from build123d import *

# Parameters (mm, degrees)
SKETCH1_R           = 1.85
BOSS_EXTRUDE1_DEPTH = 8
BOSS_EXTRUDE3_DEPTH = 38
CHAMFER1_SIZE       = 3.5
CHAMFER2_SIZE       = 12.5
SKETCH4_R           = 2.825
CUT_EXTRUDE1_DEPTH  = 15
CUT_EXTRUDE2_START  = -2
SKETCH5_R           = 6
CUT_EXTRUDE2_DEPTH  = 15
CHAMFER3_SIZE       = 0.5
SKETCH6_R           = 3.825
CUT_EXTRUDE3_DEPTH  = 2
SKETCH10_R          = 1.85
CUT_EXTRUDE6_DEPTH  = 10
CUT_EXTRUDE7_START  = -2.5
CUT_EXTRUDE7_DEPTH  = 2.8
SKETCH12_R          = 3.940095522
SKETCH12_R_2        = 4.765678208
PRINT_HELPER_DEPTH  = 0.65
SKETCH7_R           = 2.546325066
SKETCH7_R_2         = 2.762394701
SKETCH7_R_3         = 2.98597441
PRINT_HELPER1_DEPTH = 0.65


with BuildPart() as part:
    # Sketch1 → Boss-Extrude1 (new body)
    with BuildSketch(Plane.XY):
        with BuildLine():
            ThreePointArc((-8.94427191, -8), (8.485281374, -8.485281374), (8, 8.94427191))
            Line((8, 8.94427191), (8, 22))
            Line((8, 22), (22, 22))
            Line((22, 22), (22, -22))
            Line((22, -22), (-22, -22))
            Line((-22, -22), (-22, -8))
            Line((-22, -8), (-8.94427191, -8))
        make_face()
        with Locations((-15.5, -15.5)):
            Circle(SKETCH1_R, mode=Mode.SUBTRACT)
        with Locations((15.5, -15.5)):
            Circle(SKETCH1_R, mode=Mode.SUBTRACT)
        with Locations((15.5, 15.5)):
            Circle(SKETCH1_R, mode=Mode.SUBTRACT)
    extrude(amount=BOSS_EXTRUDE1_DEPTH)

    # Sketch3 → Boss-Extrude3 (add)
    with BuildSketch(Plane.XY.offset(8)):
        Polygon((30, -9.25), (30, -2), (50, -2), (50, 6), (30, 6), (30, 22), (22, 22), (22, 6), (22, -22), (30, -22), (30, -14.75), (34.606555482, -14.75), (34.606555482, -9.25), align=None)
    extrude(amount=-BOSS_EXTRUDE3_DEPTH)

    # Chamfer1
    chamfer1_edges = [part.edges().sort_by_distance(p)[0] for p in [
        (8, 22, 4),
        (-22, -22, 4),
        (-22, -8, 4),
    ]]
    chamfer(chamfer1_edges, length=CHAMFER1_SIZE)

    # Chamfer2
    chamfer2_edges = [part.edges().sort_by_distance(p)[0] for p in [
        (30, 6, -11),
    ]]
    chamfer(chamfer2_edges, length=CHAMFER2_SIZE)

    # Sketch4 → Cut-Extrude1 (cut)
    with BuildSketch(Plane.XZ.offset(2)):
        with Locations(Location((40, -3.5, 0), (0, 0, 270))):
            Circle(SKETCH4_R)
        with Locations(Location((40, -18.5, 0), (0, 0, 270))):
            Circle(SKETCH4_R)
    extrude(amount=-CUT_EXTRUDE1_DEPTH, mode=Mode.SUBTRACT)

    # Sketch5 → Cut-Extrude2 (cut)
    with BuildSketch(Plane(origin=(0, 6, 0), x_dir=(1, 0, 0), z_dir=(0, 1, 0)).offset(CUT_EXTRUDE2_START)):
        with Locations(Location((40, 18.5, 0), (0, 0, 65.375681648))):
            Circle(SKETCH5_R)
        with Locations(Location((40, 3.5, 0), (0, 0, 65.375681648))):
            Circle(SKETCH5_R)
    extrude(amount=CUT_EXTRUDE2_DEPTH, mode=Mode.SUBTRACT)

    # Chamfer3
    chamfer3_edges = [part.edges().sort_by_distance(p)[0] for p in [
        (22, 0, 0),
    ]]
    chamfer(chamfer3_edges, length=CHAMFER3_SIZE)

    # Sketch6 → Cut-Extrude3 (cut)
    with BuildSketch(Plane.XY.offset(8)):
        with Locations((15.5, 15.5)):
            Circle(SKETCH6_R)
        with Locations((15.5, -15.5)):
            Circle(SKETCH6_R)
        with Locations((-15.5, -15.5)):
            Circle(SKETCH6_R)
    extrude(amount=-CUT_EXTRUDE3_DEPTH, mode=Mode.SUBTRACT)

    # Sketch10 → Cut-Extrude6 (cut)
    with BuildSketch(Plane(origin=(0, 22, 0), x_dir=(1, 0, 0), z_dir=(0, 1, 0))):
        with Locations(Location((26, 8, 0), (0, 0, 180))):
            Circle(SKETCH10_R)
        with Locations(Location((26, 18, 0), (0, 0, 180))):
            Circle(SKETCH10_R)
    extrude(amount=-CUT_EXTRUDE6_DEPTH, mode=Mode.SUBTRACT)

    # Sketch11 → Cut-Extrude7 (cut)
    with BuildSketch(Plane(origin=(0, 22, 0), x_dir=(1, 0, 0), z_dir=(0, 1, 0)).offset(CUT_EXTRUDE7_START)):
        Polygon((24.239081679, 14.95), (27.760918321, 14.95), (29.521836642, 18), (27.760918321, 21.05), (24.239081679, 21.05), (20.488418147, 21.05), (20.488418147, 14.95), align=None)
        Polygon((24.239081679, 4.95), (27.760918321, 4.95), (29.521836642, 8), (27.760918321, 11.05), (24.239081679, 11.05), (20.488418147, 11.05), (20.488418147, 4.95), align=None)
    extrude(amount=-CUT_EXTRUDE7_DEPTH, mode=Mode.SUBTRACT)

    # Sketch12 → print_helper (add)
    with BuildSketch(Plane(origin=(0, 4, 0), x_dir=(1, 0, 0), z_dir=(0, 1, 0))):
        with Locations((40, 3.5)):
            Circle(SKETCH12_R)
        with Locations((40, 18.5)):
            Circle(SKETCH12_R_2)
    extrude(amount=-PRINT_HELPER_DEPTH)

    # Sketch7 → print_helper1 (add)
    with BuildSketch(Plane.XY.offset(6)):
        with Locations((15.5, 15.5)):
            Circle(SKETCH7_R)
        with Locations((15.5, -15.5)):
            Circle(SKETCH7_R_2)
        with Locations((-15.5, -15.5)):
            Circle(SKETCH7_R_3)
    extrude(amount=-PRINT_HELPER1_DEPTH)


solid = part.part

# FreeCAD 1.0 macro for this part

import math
import FreeCAD as App
import Part
import Sketcher
Q = App.Units.Quantity


def edges_at(feature, points):
    """Names of the edges that pass closest to the given points."""
    edges = feature.Shape.Edges
    near = lambda p: min(range(len(edges)), key=lambda i: edges[i].distToShape(Part.Vertex(*p))[0])
    return sorted({f"Edge{near(p) + 1}" for p in points})


def add_polygon(sketch, points):
    """Adds a closed chain of lines whose ends are joined by coincident constraints."""
    first, n = sketch.GeometryCount, len(points)
    for a, b in zip(points, points[1:] + points[:1]):
        sketch.addGeometry(Part.LineSegment(App.Vector(*a, 0), App.Vector(*b, 0)), False)
    for i in range(n):
        sketch.addConstraint(Sketcher.Constraint("Coincident", first + i, 2, first + (i + 1) % n, 1))

doc = App.newDocument("Part")
params = doc.addObject("Spreadsheet::Sheet", "Params")
for row, (alias, value) in enumerate([
    ("sketch1_radius", "12 mm"),
    ("sketch1_diameter", "3.7 mm"),
    ("sketch1_width", "44 mm"),
    ("sketch1_width2", "14 mm"),
    ("pad1_length", "8 mm"),
    ("sketch2_width", "20 mm"),
    ("sketch2_width2", "8 mm"),
    ("sketch2_height", "16 mm"),
    ("sketch2_height2", "44 mm"),
    ("sketch2_height3", "5.5 mm"),
    ("pad2_length", "38 mm"),
    ("chamfer_size", "3.5 mm"),
    ("chamfer2_size", "12.5 mm"),
    ("sketch3_diameter", "5.65 mm"),
    ("pocket1_length", "15 mm"),
    ("sketch4_diameter", "12 mm"),
    ("pocket2_length", "15 mm"),
    ("chamfer3_size", "0.5 mm"),
    ("sketch5_diameter", "7.65 mm"),
    ("pocket3_length", "2 mm"),
    ("sketch6_diameter", "3.7 mm"),
    ("pocket4_length", "10 mm"),
    ("sketch7_height", "6.1 mm"),
    ("pocket5_length", "2.8 mm"),
    ("pad3_length", "0.65 mm"),
    ("pad4_length", "0.65 mm"),
], start=1):
    params.set(f"A{row}", alias)
    params.set(f"B{row}", "=" + value)
    params.setAlias(f"B{row}", alias)

body = doc.addObject("PartDesign::Body", "Body")

sketch1 = body.newObject("Sketcher::SketchObject", "Sketch")
sketch1.AttachmentSupport = (doc.getObject("XY_Plane"), [""])
sketch1.MapMode = "FlatFace"
sketch1.addGeometry([
    Part.ArcOfCircle(Part.Circle(App.Vector(0, 0, 0), App.Vector(0, 0, 1), 12), math.radians(-138), math.radians(48)),
    Part.LineSegment(App.Vector(-8.9, -8, 0), App.Vector(-22, -8, 0)),
    Part.LineSegment(App.Vector(-22, -8, 0), App.Vector(-22, -22, 0)),
    Part.LineSegment(App.Vector(-22, -22, 0), App.Vector(22, -22, 0)),
    Part.LineSegment(App.Vector(22, -22, 0), App.Vector(22, 22, 0)),
    Part.LineSegment(App.Vector(22, 22, 0), App.Vector(8, 22, 0)),
    Part.LineSegment(App.Vector(8, 22, 0), App.Vector(8, 8.9, 0)),
    Part.Circle(App.Vector(15.5, -15.5, 0), App.Vector(0, 0, 1), 1.9),
    Part.Circle(App.Vector(-15.5, -15.5, 0), App.Vector(0, 0, 1), 1.9),
    Part.Circle(App.Vector(15.5, 15.5, 0), App.Vector(0, 0, 1), 1.9),
], False)
sketch1.addConstraint([
    Sketcher.Constraint("Coincident", 0, 1, 1, 1),
    Sketcher.Constraint("Coincident", 1, 2, 2, 1),
    Sketcher.Constraint("Coincident", 2, 2, 3, 1),
    Sketcher.Constraint("Coincident", 3, 2, 4, 1),
    Sketcher.Constraint("Coincident", 4, 2, 5, 1),
    Sketcher.Constraint("Coincident", 5, 2, 6, 1),
    Sketcher.Constraint("Coincident", 6, 2, 0, 2),
    Sketcher.Constraint("Horizontal", 1),
    Sketcher.Constraint("Vertical", 2),
    Sketcher.Constraint("Horizontal", 3),
    Sketcher.Constraint("Vertical", 4),
    Sketcher.Constraint("Horizontal", 5),
    Sketcher.Constraint("Vertical", 6),
    Sketcher.Constraint("Coincident", 0, 3, -1, 1),
    Sketcher.Constraint("Equal", 7, 8),
    Sketcher.Constraint("Equal", 8, 9),
    Sketcher.Constraint("Symmetric", 8, 3, 9, 3, -1, 1),
    Sketcher.Constraint("Symmetric", 2, 2, 4, 2, -1, 1),
    Sketcher.Constraint("Symmetric", 7, 3, 8, 3, -2),
    Sketcher.Constraint("Equal", 5, 2),
    Sketcher.Constraint("Equal", 3, 4),
    Sketcher.Constraint("Radius", 0, 12.0),
    Sketcher.Constraint("Diameter", 7, 3.7),
    Sketcher.Constraint("DistanceX", 3, 1, 3, 2, 44.0),
    Sketcher.Constraint("DistanceX", 5, 2, 5, 1, 14.0),
    Sketcher.Constraint("DistanceX", 8, 3, 7, 3, 31.0),
    Sketcher.Constraint("DistanceY", 7, 3, 9, 3, 31.0),
])
sketch1.setExpression("Constraints[21]", "Params.sketch1_radius")
sketch1.setExpression("Constraints[22]", "Params.sketch1_diameter")
sketch1.setExpression("Constraints[23]", "Params.sketch1_width")
sketch1.setExpression("Constraints[24]", "Params.sketch1_width2")
pad1 = body.newObject("PartDesign::Pad", "Pad")
pad1.Profile = sketch1
pad1.setExpression("Length", "Params.pad1_length")

sketch2 = body.newObject("Sketcher::SketchObject", "Sketch001")
sketch2.AttachmentSupport = (doc.getObject("XY_Plane"), [""])
sketch2.MapMode = "FlatFace"
sketch2.AttachmentOffset = App.Placement(App.Vector(0, 0, 8), App.Rotation())
add_polygon(sketch2, [(30, -9.2), (30, -2), (50, -2), (50, 6), (30, 6), (30, 22), (22, 22), (22, -22), (30, -22), (30, -14.8), (34.6, -14.8), (34.6, -9.2)])
sketch2.addConstraint([
    Sketcher.Constraint("Vertical", 0),
    Sketcher.Constraint("Horizontal", 1),
    Sketcher.Constraint("Vertical", 2),
    Sketcher.Constraint("Horizontal", 3),
    Sketcher.Constraint("Vertical", 4),
    Sketcher.Constraint("Horizontal", 5),
    Sketcher.Constraint("Vertical", 6),
    Sketcher.Constraint("Horizontal", 7),
    Sketcher.Constraint("Vertical", 8),
    Sketcher.Constraint("Horizontal", 9),
    Sketcher.Constraint("Vertical", 10),
    Sketcher.Constraint("Horizontal", 11),
    Sketcher.Constraint("Symmetric", 4, 2, 7, 2, -1),
    Sketcher.Constraint("Vertical", 0, 2, 3, 2),
    Sketcher.Constraint("Equal", 7, 2),
    Sketcher.Constraint("Equal", 0, 8),
    Sketcher.Constraint("DistanceX", 1, 1, 1, 2, 20.0),
    Sketcher.Constraint("DistanceX", 5, 2, 5, 1, 8.0),
    Sketcher.Constraint("DistanceY", 4, 1, 4, 2, 16.0),
    Sketcher.Constraint("DistanceY", 6, 2, 6, 1, 44.0),
    Sketcher.Constraint("DistanceY", 10, 1, 10, 2, 5.5),
    Sketcher.Constraint("DistanceX", -1, 1, 0, 2, 30.0),
    Sketcher.Constraint("DistanceX", 9, 1, 9, 2, 4.606555),
])
sketch2.setExpression("Constraints[28]", "Params.sketch2_width")
sketch2.setExpression("Constraints[29]", "Params.sketch2_width2")
sketch2.setExpression("Constraints[30]", "Params.sketch2_height")
sketch2.setExpression("Constraints[31]", "Params.sketch2_height2")
sketch2.setExpression("Constraints[32]", "Params.sketch2_height3")
pad2 = body.newObject("PartDesign::Pad", "Pad001")
pad2.Profile = sketch2
pad2.setExpression("Length", "Params.pad2_length")
pad2.Reversed = True
doc.recompute()

chamfer = body.newObject("PartDesign::Chamfer", "Chamfer")
chamfer.Base = (pad2, edges_at(pad2, [(8, 22, 4), (-22, -22, 4), (-22, -8, 4)]))
chamfer.setExpression("Size", "Params.chamfer_size")
doc.recompute()

chamfer2 = body.newObject("PartDesign::Chamfer", "Chamfer001")
chamfer2.Base = (chamfer, edges_at(chamfer, [(30, 6, -11)]))
chamfer2.setExpression("Size", "Params.chamfer2_size")

sketch3 = body.newObject("Sketcher::SketchObject", "Sketch002")
sketch3.AttachmentSupport = (doc.getObject("XZ_Plane"), [""])
sketch3.MapMode = "FlatFace"
sketch3.AttachmentOffset = App.Placement(App.Vector(0, 0, 2), App.Rotation())
sketch3.addGeometry([
    Part.Circle(App.Vector(40, -3.5, 0), App.Vector(0, 0, 1), 2.8),
    Part.Circle(App.Vector(40, -18.5, 0), App.Vector(0, 0, 1), 2.8),
], False)
sketch3.addConstraint([
    Sketcher.Constraint("Equal", 0, 1),
    Sketcher.Constraint("Vertical", 0, 3, 1, 3),
    Sketcher.Constraint("Diameter", 0, 5.65),
    Sketcher.Constraint("DistanceX", -1, 1, 0, 3, 40.0),
    Sketcher.Constraint("DistanceY", 1, 3, 0, 3, 15.0),
    Sketcher.Constraint("DistanceY", 0, 3, -1, 1, 3.5),
])
sketch3.setExpression("Constraints[2]", "Params.sketch3_diameter")
pocket1 = body.newObject("PartDesign::Pocket", "Pocket")
pocket1.Profile = sketch3
pocket1.setExpression("Length", "Params.pocket1_length")

sketch4 = body.newObject("Sketcher::SketchObject", "Sketch003")
sketch4.AttachmentSupport = (doc.getObject("XZ_Plane"), [""])
sketch4.MapMode = "FlatFace"
sketch4.AttachmentOffset = App.Placement(App.Vector(0, 0, -4), App.Rotation())
sketch4.addGeometry([
    Part.Circle(App.Vector(40, -18, 0), App.Vector(0, 0, 1), 6),
    Part.Circle(App.Vector(40, -4, 0), App.Vector(0, 0, 1), 6),
], False)
sketch4.addConstraint([
    Sketcher.Constraint("Equal", 0, 1),
    Sketcher.Constraint("Vertical", 0, 3, 1, 3),
    Sketcher.Constraint("Diameter", 0, 12.0),
    Sketcher.Constraint("DistanceX", -1, 1, 0, 3, 40.0),
    Sketcher.Constraint("DistanceY", 0, 3, 1, 3, 15.0),
    Sketcher.Constraint("DistanceY", 0, 3, -1, 1, 18.5),
])
sketch4.setExpression("Constraints[2]", "Params.sketch4_diameter")
pocket2 = body.newObject("PartDesign::Pocket", "Pocket001")
pocket2.Profile = sketch4
pocket2.setExpression("Length", "Params.pocket2_length")
doc.recompute()

chamfer3 = body.newObject("PartDesign::Chamfer", "Chamfer002")
chamfer3.Base = (pocket2, edges_at(pocket2, [(22, 0, 0)]))
chamfer3.setExpression("Size", "Params.chamfer3_size")

sketch5 = body.newObject("Sketcher::SketchObject", "Sketch004")
sketch5.AttachmentSupport = (doc.getObject("XY_Plane"), [""])
sketch5.MapMode = "FlatFace"
sketch5.AttachmentOffset = App.Placement(App.Vector(0, 0, 8), App.Rotation())
sketch5.addGeometry([
    Part.Circle(App.Vector(15.5, 15.5, 0), App.Vector(0, 0, 1), 3.8),
    Part.Circle(App.Vector(15.5, -15.5, 0), App.Vector(0, 0, 1), 3.8),
    Part.Circle(App.Vector(-15.5, -15.5, 0), App.Vector(0, 0, 1), 3.8),
], False)
sketch5.addConstraint([
    Sketcher.Constraint("Equal", 0, 1),
    Sketcher.Constraint("Equal", 1, 2),
    Sketcher.Constraint("Symmetric", 0, 3, 2, 3, -1, 1),
    Sketcher.Constraint("Symmetric", 1, 3, 2, 3, -2),
    Sketcher.Constraint("Diameter", 0, 7.65),
    Sketcher.Constraint("DistanceY", 1, 3, 0, 3, 31.0),
    Sketcher.Constraint("DistanceX", 2, 3, 1, 3, 31.0),
])
sketch5.setExpression("Constraints[4]", "Params.sketch5_diameter")
pocket3 = body.newObject("PartDesign::Pocket", "Pocket002")
pocket3.Profile = sketch5
pocket3.setExpression("Length", "Params.pocket3_length")

sketch6 = body.newObject("Sketcher::SketchObject", "Sketch005")
sketch6.AttachmentSupport = (doc.getObject("XZ_Plane"), [""])
sketch6.MapMode = "FlatFace"
sketch6.AttachmentOffset = App.Placement(App.Vector(0, 0, -22), App.Rotation())
sketch6.addGeometry([
    Part.Circle(App.Vector(26, -8, 0), App.Vector(0, 0, 1), 1.9),
    Part.Circle(App.Vector(26, -18, 0), App.Vector(0, 0, 1), 1.9),
], False)
sketch6.addConstraint([
    Sketcher.Constraint("Equal", 0, 1),
    Sketcher.Constraint("Vertical", 0, 3, 1, 3),
    Sketcher.Constraint("Diameter", 0, 3.7),
    Sketcher.Constraint("DistanceX", -1, 1, 0, 3, 26.0),
    Sketcher.Constraint("DistanceY", 0, 3, -1, 1, 8.0),
    Sketcher.Constraint("DistanceY", 1, 3, -1, 1, 18.0),
])
sketch6.setExpression("Constraints[2]", "Params.sketch6_diameter")
pocket4 = body.newObject("PartDesign::Pocket", "Pocket003")
pocket4.Profile = sketch6
pocket4.setExpression("Length", "Params.pocket4_length")
pocket4.Reversed = True

sketch7 = body.newObject("Sketcher::SketchObject", "Sketch006")
sketch7.AttachmentSupport = (doc.getObject("XZ_Plane"), [""])
sketch7.MapMode = "FlatFace"
sketch7.AttachmentOffset = App.Placement(App.Vector(0, 0, -19.5), App.Rotation())
add_polygon(sketch7, [(27.8, -14.9), (29.5, -18), (27.8, -21.1), (20.5, -21.1), (20.5, -14.9)])
add_polygon(sketch7, [(27.8, -5), (29.5, -8), (27.8, -11.1), (20.5, -11.1), (20.5, -5)])
sketch7.addConstraint([
    Sketcher.Constraint("Horizontal", 2),
    Sketcher.Constraint("Vertical", 3),
    Sketcher.Constraint("Horizontal", 4),
    Sketcher.Constraint("Horizontal", 7),
    Sketcher.Constraint("Vertical", 8),
    Sketcher.Constraint("Horizontal", 9),
    Sketcher.Constraint("Parallel", 0, 5),
    Sketcher.Constraint("Parallel", 1, 6),
    Sketcher.Constraint("Vertical", 1, 2, 4, 2),
    Sketcher.Constraint("Vertical", 0, 2, 5, 2),
    Sketcher.Constraint("Vertical", 4, 2, 6, 2),
    Sketcher.Constraint("Vertical", 3, 2, 7, 2),
    Sketcher.Constraint("Vertical", 6, 2, 9, 2),
    Sketcher.Constraint("Equal", 0, 1),
    Sketcher.Constraint("Angle", 0, Q("-60 deg")),
    Sketcher.Constraint("DistanceY", 3, 1, 3, 2, 6.1),
    Sketcher.Constraint("DistanceY", 0, 2, -1, 1, 18.0),
    Sketcher.Constraint("DistanceY", 5, 2, -1, 1, 8.0),
    Sketcher.Constraint("DistanceX", 2, 2, 2, 1, 7.2725),
    Sketcher.Constraint("DistanceX", -1, 1, 1, 2, 27.760918),
])
sketch7.setExpression("Constraints[25]", "Params.sketch7_height")
pocket5 = body.newObject("PartDesign::Pocket", "Pocket004")
pocket5.Profile = sketch7
pocket5.setExpression("Length", "Params.pocket5_length")
pocket5.Reversed = True

sketch8 = body.newObject("Sketcher::SketchObject", "Sketch007")
sketch8.AttachmentSupport = (doc.getObject("XZ_Plane"), [""])
sketch8.MapMode = "FlatFace"
sketch8.AttachmentOffset = App.Placement(App.Vector(0, 0, -4), App.Rotation())
sketch8.addGeometry([
    Part.Circle(App.Vector(40, -3.5, 0), App.Vector(0, 0, 1), 3.9),
    Part.Circle(App.Vector(40, -18.5, 0), App.Vector(0, 0, 1), 4.8),
], False)
sketch8.addConstraint([
    Sketcher.Constraint("Vertical", 0, 3, 1, 3),
    Sketcher.Constraint("DistanceX", -1, 1, 0, 3, 40.0),
    Sketcher.Constraint("DistanceY", 1, 3, 0, 3, 15.0),
    Sketcher.Constraint("DistanceY", 0, 3, -1, 1, 3.5),
    Sketcher.Constraint("Diameter", 0, 7.880191),
    Sketcher.Constraint("Diameter", 1, 9.531356),
])
pad3 = body.newObject("PartDesign::Pad", "Pad002")
pad3.Profile = sketch8
pad3.setExpression("Length", "Params.pad3_length")

sketch9 = body.newObject("Sketcher::SketchObject", "Sketch008")
sketch9.AttachmentSupport = (doc.getObject("XY_Plane"), [""])
sketch9.MapMode = "FlatFace"
sketch9.AttachmentOffset = App.Placement(App.Vector(0, 0, 6), App.Rotation())
sketch9.addGeometry([
    Part.Circle(App.Vector(15.5, 15.5, 0), App.Vector(0, 0, 1), 2.5),
    Part.Circle(App.Vector(15.5, -15.5, 0), App.Vector(0, 0, 1), 2.8),
    Part.Circle(App.Vector(-15.5, -15.5, 0), App.Vector(0, 0, 1), 3),
], False)
sketch9.addConstraint([
    Sketcher.Constraint("Symmetric", 0, 3, 2, 3, -1, 1),
    Sketcher.Constraint("Symmetric", 1, 3, 2, 3, -2),
    Sketcher.Constraint("DistanceY", 1, 3, 0, 3, 31.0),
    Sketcher.Constraint("DistanceX", 2, 3, 1, 3, 31.0),
    Sketcher.Constraint("Diameter", 0, 5.09265),
    Sketcher.Constraint("Diameter", 1, 5.524789),
    Sketcher.Constraint("Diameter", 2, 5.971949),
])
pad4 = body.newObject("PartDesign::Pad", "Pad003")
pad4.Profile = sketch9
pad4.setExpression("Length", "Params.pad4_length")
pad4.Reversed = True

doc.recompute()
